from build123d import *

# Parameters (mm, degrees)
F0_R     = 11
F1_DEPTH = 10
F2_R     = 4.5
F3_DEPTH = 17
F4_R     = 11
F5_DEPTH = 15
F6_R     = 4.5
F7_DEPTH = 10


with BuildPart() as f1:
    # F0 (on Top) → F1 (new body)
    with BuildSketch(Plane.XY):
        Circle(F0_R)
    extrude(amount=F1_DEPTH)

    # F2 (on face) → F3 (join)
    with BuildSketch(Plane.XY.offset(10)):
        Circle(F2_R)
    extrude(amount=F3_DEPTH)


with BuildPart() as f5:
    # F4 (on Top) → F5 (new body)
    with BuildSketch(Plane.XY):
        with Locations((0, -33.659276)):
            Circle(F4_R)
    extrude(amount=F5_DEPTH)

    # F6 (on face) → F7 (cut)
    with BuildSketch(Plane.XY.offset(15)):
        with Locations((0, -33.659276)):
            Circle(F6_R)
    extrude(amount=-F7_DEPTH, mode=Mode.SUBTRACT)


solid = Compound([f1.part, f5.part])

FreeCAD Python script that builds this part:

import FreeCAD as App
import Part
import Sketcher
from FreeCAD import Vector
Q = App.Units.Quantity

doc = App.newDocument("Part")
params = doc.addObject("Spreadsheet::Sheet", "Params")
for row, (alias, value) in enumerate([
    ("sketch1_diameter", "22 mm"),
    ("pad1_length", "10 mm"),
    ("sketch2_diameter", "9 mm"),
    ("pad2_length", "17 mm"),
    ("sketch3_diameter", "22 mm"),
    ("pad3_length", "15 mm"),
    ("sketch4_diameter", "9 mm"),
    ("pocket1_length", "10 mm"),
], start=1):
    params.set(f"A{row}", alias)
    params.set(f"B{row}", "=" + value)
    params.setAlias(f"B{row}", alias)

body = doc.addObject("PartDesign::Body", "Body")

sketch1 = body.newObject("Sketcher::SketchObject", "Sketch")
sketch1.AttachmentSupport = (doc.getObject("XY_Plane"), [""])
sketch1.MapMode = "FlatFace"
sketch1.addGeometry(Part.Circle(Vector(0, 0, 0), Vector(0, 0, 1), 11), False)
sketch1.addConstraint(Sketcher.Constraint("Coincident", 0, 3, -1, 1))
sketch1.addConstraint(Sketcher.Constraint("Diameter", 0, Q("22 mm")))
sketch1.setExpression("Constraints[1]", "Params.sketch1_diameter")
pad1 = body.newObject("PartDesign::Pad", "Pad")
pad1.Profile = sketch1
pad1.setExpression("Length", "Params.pad1_length")

sketch2 = body.newObject("Sketcher::SketchObject", "Sketch001")
sketch2.AttachmentSupport = (doc.getObject("XY_Plane"), [""])
sketch2.MapMode = "FlatFace"
sketch2.AttachmentOffset = App.Placement(Vector(0, 0, 10), App.Rotation())
sketch2.addGeometry(Part.Circle(Vector(0, 0, 0), Vector(0, 0, 1), 4.5), False)
sketch2.addConstraint(Sketcher.Constraint("Coincident", 0, 3, -1, 1))
sketch2.addConstraint(Sketcher.Constraint("Diameter", 0, Q("9 mm")))
sketch2.setExpression("Constraints[1]", "Params.sketch2_diameter")
pad2 = body.newObject("PartDesign::Pad", "Pad001")
pad2.Profile = sketch2
pad2.setExpression("Length", "Params.pad2_length")
body2 = doc.addObject("PartDesign::Body", "Body001")

sketch3 = body2.newObject("Sketcher::SketchObject", "Sketch002")
sketch3.AttachmentSupport = (doc.getObject("XY_Plane001"), [""])
sketch3.MapMode = "FlatFace"
sketch3.addGeometry(Part.Circle(Vector(0, -33.659276, 0), Vector(0, 0, 1), 11), False)
sketch3.addConstraint(Sketcher.Constraint("PointOnObject", 0, 3, -2))
sketch3.addConstraint(Sketcher.Constraint("Diameter", 0, Q("22 mm")))
sketch3.addConstraint(Sketcher.Constraint("DistanceY", 0, 3, -1, 1, Q("33.659276 mm")))
sketch3.setExpression("Constraints[1]", "Params.sketch3_diameter")
pad3 = body2.newObject("PartDesign::Pad", "Pad002")
pad3.Profile = sketch3
pad3.setExpression("Length", "Params.pad3_length")

sketch4 = body2.newObject("Sketcher::SketchObject", "Sketch003")
sketch4.AttachmentSupport = (doc.getObject("XY_Plane001"), [""])
sketch4.MapMode = "FlatFace"
sketch4.AttachmentOffset = App.Placement(Vector(0, 0, 15), App.Rotation())
sketch4.addGeometry(Part.Circle(Vector(0, -33.659276, 0), Vector(0, 0, 1), 4.5), False)
sketch4.addConstraint(Sketcher.Constraint("PointOnObject", 0, 3, -2))
sketch4.addConstraint(Sketcher.Constraint("Diameter", 0, Q("9 mm")))
sketch4.addConstraint(Sketcher.Constraint("DistanceY", 0, 3, -1, 1, Q("33.659276 mm")))
sketch4.setExpression("Constraints[1]", "Params.sketch4_diameter")
pocket1 = body2.newObject("PartDesign::Pocket", "Pocket")
pocket1.Profile = sketch4
pocket1.setExpression("Length", "Params.pocket1_length")

doc.recompute()
